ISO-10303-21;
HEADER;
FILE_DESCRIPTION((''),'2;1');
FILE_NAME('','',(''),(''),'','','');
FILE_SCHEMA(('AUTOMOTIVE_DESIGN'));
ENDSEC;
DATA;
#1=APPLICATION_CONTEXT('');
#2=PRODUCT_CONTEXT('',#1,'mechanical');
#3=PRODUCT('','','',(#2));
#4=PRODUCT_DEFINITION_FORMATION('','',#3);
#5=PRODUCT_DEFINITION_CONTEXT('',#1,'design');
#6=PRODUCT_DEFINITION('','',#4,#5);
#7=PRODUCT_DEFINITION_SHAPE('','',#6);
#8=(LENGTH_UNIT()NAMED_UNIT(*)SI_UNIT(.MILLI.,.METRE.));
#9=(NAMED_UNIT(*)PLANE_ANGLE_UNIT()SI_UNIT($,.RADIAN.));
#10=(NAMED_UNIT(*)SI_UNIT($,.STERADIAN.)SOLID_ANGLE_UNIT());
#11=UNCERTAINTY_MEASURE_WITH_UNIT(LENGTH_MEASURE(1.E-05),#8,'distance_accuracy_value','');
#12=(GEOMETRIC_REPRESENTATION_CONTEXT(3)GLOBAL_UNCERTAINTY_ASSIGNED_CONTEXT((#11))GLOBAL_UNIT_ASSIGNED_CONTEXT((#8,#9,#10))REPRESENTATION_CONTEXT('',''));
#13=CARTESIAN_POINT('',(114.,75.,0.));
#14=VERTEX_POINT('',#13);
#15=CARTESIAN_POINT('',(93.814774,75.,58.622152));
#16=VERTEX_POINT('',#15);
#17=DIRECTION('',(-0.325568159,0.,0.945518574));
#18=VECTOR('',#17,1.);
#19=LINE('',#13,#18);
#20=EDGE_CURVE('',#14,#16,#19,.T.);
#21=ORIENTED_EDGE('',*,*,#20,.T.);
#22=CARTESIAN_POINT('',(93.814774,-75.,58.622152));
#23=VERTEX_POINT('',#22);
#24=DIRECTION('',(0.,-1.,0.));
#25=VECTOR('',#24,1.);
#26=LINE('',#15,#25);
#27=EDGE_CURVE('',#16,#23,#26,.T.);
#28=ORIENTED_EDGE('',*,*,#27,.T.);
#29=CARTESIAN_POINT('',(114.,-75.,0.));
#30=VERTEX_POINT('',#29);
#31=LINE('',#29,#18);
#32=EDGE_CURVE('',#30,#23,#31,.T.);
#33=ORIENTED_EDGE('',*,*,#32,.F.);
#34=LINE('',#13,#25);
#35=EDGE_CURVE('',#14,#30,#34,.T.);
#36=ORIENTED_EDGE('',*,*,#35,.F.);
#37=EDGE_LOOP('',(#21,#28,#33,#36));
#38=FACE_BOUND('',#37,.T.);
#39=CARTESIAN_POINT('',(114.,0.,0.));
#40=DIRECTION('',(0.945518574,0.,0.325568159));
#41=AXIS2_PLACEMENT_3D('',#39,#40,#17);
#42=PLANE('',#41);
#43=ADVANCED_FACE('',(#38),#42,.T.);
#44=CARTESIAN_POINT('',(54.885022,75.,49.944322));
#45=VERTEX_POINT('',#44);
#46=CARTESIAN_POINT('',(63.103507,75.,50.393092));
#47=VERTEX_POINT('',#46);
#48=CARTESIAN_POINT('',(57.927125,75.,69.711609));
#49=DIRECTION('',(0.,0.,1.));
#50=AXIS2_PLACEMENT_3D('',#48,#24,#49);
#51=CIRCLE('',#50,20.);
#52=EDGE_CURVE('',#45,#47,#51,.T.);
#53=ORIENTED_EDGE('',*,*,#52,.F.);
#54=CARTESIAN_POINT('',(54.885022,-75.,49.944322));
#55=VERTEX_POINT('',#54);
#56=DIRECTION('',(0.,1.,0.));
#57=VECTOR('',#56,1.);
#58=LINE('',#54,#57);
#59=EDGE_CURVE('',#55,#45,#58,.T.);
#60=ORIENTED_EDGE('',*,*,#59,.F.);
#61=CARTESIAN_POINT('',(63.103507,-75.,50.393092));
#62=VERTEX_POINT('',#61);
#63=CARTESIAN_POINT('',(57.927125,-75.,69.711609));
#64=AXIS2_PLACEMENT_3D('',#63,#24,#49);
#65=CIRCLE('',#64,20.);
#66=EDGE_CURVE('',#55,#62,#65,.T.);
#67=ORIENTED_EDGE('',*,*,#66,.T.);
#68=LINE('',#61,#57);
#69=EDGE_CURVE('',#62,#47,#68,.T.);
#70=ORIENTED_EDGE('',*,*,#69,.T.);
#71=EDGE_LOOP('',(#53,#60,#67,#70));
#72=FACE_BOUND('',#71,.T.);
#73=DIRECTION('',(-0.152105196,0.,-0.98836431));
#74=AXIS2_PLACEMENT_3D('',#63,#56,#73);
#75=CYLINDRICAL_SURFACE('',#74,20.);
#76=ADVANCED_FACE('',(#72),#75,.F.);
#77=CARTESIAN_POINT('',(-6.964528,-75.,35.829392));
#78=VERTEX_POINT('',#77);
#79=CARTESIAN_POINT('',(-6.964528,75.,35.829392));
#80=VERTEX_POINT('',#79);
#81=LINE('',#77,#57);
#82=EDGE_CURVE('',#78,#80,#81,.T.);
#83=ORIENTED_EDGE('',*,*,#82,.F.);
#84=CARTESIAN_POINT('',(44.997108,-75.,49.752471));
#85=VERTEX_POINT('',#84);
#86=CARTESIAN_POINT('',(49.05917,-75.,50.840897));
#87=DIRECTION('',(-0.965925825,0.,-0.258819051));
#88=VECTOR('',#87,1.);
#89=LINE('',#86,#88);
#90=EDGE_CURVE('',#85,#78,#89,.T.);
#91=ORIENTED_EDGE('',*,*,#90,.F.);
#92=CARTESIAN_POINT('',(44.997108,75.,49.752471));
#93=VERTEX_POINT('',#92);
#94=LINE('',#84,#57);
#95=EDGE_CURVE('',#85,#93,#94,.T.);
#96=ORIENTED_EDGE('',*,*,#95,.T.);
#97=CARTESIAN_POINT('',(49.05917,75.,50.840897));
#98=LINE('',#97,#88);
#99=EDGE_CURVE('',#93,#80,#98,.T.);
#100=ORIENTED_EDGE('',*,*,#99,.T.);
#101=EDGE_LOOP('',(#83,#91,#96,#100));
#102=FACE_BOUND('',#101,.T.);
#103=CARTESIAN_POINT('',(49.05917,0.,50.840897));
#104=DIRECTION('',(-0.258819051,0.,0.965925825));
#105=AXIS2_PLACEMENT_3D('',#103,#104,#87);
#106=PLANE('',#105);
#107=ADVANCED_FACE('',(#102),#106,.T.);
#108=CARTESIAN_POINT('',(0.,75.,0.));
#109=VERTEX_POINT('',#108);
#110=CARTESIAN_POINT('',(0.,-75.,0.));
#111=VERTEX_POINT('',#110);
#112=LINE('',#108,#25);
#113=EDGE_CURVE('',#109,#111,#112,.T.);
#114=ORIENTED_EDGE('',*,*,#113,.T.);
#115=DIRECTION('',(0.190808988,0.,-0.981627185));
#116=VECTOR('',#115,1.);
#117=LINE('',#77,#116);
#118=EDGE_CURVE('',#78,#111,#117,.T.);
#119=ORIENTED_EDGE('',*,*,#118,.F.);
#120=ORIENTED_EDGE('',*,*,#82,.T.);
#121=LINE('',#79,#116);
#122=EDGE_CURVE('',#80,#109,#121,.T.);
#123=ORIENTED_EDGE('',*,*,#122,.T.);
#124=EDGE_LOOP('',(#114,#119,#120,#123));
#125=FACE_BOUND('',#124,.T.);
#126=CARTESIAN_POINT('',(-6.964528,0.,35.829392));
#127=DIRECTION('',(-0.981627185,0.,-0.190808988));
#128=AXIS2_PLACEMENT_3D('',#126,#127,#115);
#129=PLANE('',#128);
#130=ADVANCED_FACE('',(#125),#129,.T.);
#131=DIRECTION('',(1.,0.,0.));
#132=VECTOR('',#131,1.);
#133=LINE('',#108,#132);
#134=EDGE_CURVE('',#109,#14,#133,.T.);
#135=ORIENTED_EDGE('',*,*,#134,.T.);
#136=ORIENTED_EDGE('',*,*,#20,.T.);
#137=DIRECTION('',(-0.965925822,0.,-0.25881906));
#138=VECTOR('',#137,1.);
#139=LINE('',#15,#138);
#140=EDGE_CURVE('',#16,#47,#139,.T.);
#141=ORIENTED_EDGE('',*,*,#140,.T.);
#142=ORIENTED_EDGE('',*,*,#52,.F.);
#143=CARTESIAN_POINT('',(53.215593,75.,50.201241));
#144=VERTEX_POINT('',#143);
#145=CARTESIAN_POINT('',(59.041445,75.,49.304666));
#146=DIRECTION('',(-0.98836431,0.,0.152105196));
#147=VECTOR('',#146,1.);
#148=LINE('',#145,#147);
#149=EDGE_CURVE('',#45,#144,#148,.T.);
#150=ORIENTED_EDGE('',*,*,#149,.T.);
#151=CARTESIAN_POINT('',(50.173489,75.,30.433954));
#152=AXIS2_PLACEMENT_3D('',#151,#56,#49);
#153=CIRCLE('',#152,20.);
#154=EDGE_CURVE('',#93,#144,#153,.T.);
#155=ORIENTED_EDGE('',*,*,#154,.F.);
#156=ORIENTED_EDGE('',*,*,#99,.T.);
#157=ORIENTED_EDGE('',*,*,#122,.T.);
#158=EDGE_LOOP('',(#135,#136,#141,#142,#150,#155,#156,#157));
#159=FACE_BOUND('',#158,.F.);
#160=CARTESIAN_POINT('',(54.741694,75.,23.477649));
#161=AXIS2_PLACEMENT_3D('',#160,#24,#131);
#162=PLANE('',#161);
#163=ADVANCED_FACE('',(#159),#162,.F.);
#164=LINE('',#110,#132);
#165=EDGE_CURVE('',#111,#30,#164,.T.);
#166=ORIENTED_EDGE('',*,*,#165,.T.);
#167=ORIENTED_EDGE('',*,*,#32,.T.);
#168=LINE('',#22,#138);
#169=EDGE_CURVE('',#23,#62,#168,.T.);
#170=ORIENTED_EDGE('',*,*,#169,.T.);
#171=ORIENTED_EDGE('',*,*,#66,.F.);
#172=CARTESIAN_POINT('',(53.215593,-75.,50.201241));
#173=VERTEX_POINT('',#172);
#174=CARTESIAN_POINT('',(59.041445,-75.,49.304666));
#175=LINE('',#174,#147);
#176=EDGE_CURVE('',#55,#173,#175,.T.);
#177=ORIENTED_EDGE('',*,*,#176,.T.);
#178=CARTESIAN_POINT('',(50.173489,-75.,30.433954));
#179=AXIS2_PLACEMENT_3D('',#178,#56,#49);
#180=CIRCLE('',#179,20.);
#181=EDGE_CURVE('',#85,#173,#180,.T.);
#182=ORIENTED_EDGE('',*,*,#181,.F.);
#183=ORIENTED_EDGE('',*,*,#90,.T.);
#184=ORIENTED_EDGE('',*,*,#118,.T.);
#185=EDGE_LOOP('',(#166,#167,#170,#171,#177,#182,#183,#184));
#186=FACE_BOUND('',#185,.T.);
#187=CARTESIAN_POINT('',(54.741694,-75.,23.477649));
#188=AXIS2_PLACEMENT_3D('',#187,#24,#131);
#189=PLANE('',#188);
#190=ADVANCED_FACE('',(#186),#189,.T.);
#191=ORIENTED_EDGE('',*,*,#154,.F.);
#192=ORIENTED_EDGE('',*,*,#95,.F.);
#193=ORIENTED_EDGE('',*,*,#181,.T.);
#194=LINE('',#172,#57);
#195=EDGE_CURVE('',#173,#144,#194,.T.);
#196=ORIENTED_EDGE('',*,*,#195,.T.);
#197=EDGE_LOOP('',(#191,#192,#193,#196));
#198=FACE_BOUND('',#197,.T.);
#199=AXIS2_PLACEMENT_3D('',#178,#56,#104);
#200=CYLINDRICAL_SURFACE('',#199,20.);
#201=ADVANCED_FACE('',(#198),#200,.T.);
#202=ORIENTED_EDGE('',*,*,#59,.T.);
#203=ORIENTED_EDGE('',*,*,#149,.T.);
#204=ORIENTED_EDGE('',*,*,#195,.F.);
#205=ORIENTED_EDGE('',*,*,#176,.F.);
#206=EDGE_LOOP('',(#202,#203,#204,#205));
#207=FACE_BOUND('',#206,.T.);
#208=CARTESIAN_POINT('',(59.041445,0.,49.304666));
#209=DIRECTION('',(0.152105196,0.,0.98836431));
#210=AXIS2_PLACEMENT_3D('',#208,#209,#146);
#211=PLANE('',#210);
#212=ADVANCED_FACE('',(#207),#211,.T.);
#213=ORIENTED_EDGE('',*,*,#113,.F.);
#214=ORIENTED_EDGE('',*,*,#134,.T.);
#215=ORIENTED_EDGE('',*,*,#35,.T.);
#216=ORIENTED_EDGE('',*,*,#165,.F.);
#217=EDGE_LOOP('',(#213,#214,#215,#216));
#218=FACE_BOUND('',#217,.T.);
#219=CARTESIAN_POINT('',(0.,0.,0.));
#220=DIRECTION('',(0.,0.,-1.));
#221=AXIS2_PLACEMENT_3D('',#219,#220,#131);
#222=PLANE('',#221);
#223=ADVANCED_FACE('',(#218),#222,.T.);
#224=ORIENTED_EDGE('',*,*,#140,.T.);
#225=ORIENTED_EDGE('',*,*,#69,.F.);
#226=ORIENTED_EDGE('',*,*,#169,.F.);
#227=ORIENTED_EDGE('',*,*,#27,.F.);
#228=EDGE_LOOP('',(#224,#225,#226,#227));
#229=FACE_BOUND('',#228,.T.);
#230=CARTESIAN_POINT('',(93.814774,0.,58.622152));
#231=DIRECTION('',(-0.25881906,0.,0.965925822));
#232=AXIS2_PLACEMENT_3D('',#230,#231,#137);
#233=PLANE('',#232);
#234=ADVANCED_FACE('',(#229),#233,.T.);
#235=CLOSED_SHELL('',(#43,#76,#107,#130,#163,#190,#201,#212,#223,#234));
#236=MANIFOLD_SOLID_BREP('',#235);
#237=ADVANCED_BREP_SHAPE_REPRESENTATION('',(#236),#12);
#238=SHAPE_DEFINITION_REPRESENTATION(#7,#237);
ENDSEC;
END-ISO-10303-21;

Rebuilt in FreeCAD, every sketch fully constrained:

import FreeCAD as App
import Part
import Sketcher
Q = App.Units.Quantity


def edges_at(feature, points):
    """Names of the edges that pass closest to the given points."""
    edges = feature.Shape.Edges
    near = lambda p: min(range(len(edges)), key=lambda i: edges[i].distToShape(Part.Vertex(*p))[0])
    return sorted({f"Edge{near(p) + 1}" for p in points})

doc = App.newDocument("Part")
params = doc.addObject("Spreadsheet::Sheet", "Params")
for row, (alias, value) in enumerate([
    ("sketch1_width", "114 mm"),
    ("sketch1_length", "62 mm"),
    ("sketch1_length2", "35.999999 mm"),
    ("sketch1_length3", "58 mm"),
    ("sketch1_length4", "36.5 mm"),
    ("pad1_length", "150 mm"),
    ("fillet_radius", "20 mm"),
], start=1):
    params.set(f"A{row}", alias)
    params.set(f"B{row}", "=" + value)
    params.setAlias(f"B{row}", alias)

body = doc.addObject("PartDesign::Body", "Body")

# Sketch on XZ plane
sketch1 = body.newObject("Sketcher::SketchObject", "Sketch")
sketch1.AttachmentSupport = (doc.getObject("XZ_Plane"), [""])
sketch1.MapMode = "FlatFace"
sketch1.addGeometry([
    Part.LineSegment(App.Vector(-7, 36, 0), App.Vector(0, 0, 0)),  # 0
    Part.LineSegment(App.Vector(0, 0, 0), App.Vector(114, 0, 0)),  # 1
    Part.LineSegment(App.Vector(114, 0, 0), App.Vector(94, 59, 0)),  # 2
    Part.LineSegment(App.Vector(94, 59, 0), App.Vector(59, 49, 0)),  # 3
    Part.LineSegment(App.Vector(59, 49, 0), App.Vector(49, 51, 0)),  # 4
    Part.LineSegment(App.Vector(49, 51, 0), App.Vector(-7, 36, 0)),  # 5
], False)
sketch1.addConstraint([
    Sketcher.Constraint("Coincident", 0, 2, 1, 1),
    Sketcher.Constraint("Coincident", 1, 2, 2, 1),
    Sketcher.Constraint("Coincident", 2, 2, 3, 1),
    Sketcher.Constraint("Coincident", 3, 2, 4, 1),
    Sketcher.Constraint("Coincident", 4, 2, 5, 1),
    Sketcher.Constraint("Coincident", 5, 2, 0, 1),
    Sketcher.Constraint("Horizontal", 1),
    Sketcher.Constraint("Coincident", 0, 2, -1, 1),
    Sketcher.Constraint("Parallel", 3, 5),
    Sketcher.Constraint("DistanceX", 1, 1, 1, 2, Q("114 mm")),
    Sketcher.Constraint("Angle", 0, Q("-79 deg")),
    Sketcher.Constraint("Angle", 2, Q("109 deg")),
    Sketcher.Constraint("Angle", 3, Q("-164.999999 deg")),
    Sketcher.Constraint("Distance", 2, Q("62 mm")),
    Sketcher.Constraint("Distance", 3, Q("35.999999 mm")),
    Sketcher.Constraint("Distance", 5, Q("58 mm")),
    Sketcher.Constraint("Distance", 0, Q("36.5 mm")),
])
sketch1.setExpression("Constraints[9]", "Params.sketch1_width")
sketch1.setExpression("Constraints[13]", "Params.sketch1_length")
sketch1.setExpression("Constraints[14]", "Params.sketch1_length2")
sketch1.setExpression("Constraints[15]", "Params.sketch1_length3")
sketch1.setExpression("Constraints[16]", "Params.sketch1_length4")
pad1 = body.newObject("PartDesign::Pad", "Pad")
pad1.Profile = sketch1
pad1.setExpression("Length", "Params.pad1_length")
pad1.Midplane = True
doc.recompute()

fillet = body.newObject("PartDesign::Fillet", "Fillet")
fillet.Base = (pad1, edges_at(pad1, [(49.059, 0, 50.841), (59.041, 0, 49.305)]))
fillet.setExpression("Radius", "Params.fillet_radius")

doc.recompute()
